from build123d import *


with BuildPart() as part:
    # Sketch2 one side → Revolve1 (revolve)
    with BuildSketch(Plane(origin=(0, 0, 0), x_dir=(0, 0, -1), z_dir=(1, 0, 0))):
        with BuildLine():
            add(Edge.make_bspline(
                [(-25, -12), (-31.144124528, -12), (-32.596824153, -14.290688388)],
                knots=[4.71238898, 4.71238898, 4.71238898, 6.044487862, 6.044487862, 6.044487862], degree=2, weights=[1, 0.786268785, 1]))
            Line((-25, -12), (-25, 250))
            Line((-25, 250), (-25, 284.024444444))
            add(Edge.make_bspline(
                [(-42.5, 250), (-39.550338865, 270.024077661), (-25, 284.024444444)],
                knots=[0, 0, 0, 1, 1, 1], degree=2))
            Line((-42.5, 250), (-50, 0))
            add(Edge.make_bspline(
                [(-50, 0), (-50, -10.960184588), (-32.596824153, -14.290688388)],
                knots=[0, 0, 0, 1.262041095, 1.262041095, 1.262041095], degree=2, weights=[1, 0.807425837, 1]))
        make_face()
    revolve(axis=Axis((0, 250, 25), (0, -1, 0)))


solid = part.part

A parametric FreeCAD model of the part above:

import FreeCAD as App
import Part
import Sketcher

V = App.Vector
Q = App.Units.Quantity

doc = App.newDocument("Part")
body = doc.addObject("PartDesign::Body", "Body")

# Sketch on YZ plane
sketch1 = body.newObject("Sketcher::SketchObject", "Sketch")
sketch1.AttachmentSupport = (doc.getObject("YZ_Plane"), [""])
sketch1.MapMode = "FlatFace"
sketch1.addGeometry([
    Part.BSplineCurve([V(-12, 25, 0), V(-12, 31.144125, 0), V(-14.290688, 32.596824, 0)], [3, 3], [4.71238898, 6.044487862], False, 2, [1, 0.786268785, 1], False),  # 0
    Part.LineSegment(V(-12, 25, 0), V(284.024444, 25, 0)),  # 1
    Part.BSplineCurve([V(250, 42.5, 0), V(270.024078, 39.550339, 0), V(284.024444, 25, 0)], [3, 3], [0, 1], False, 2, [1, 1, 1], False),  # 2
    Part.LineSegment(V(250, 42.5, 0), V(0, 50, 0)),  # 3
    Part.BSplineCurve([V(0, 50, 0), V(-10.960185, 50, 0), V(-14.290688, 32.596824, 0)], [3, 3], [0, 1.262041095], False, 2, [1, 0.807425837, 1], False),  # 4
], False)
sketch1.addGeometry(Part.LineSegment(V(284.024444, 25, 0), V(-14.290688, 25, 0)), True)  # axis
sketch1.addConstraint([
    Sketcher.Constraint("Block", 0),
    Sketcher.Constraint("Block", 2),
    Sketcher.Constraint("Block", 4),
    Sketcher.Constraint("Coincident", 0, 1, 1, 1),
    Sketcher.Constraint("Coincident", 1, 2, 2, 2),
    Sketcher.Constraint("Coincident", 2, 1, 3, 1),
    Sketcher.Constraint("Coincident", 3, 2, 4, 1),
    Sketcher.Constraint("Horizontal", 5),
    Sketcher.Constraint("Coincident", 5, 1, 1, 2),
    Sketcher.Constraint("DistanceX", 5, 2, 5, 1, Q("298.315133 mm")),
])
revolution = body.newObject("PartDesign::Revolution", "Revolution")
revolution.Profile = sketch1
revolution.ReferenceAxis = (sketch1, ["Axis0"])
revolution.Angle = 360

doc.recompute()
